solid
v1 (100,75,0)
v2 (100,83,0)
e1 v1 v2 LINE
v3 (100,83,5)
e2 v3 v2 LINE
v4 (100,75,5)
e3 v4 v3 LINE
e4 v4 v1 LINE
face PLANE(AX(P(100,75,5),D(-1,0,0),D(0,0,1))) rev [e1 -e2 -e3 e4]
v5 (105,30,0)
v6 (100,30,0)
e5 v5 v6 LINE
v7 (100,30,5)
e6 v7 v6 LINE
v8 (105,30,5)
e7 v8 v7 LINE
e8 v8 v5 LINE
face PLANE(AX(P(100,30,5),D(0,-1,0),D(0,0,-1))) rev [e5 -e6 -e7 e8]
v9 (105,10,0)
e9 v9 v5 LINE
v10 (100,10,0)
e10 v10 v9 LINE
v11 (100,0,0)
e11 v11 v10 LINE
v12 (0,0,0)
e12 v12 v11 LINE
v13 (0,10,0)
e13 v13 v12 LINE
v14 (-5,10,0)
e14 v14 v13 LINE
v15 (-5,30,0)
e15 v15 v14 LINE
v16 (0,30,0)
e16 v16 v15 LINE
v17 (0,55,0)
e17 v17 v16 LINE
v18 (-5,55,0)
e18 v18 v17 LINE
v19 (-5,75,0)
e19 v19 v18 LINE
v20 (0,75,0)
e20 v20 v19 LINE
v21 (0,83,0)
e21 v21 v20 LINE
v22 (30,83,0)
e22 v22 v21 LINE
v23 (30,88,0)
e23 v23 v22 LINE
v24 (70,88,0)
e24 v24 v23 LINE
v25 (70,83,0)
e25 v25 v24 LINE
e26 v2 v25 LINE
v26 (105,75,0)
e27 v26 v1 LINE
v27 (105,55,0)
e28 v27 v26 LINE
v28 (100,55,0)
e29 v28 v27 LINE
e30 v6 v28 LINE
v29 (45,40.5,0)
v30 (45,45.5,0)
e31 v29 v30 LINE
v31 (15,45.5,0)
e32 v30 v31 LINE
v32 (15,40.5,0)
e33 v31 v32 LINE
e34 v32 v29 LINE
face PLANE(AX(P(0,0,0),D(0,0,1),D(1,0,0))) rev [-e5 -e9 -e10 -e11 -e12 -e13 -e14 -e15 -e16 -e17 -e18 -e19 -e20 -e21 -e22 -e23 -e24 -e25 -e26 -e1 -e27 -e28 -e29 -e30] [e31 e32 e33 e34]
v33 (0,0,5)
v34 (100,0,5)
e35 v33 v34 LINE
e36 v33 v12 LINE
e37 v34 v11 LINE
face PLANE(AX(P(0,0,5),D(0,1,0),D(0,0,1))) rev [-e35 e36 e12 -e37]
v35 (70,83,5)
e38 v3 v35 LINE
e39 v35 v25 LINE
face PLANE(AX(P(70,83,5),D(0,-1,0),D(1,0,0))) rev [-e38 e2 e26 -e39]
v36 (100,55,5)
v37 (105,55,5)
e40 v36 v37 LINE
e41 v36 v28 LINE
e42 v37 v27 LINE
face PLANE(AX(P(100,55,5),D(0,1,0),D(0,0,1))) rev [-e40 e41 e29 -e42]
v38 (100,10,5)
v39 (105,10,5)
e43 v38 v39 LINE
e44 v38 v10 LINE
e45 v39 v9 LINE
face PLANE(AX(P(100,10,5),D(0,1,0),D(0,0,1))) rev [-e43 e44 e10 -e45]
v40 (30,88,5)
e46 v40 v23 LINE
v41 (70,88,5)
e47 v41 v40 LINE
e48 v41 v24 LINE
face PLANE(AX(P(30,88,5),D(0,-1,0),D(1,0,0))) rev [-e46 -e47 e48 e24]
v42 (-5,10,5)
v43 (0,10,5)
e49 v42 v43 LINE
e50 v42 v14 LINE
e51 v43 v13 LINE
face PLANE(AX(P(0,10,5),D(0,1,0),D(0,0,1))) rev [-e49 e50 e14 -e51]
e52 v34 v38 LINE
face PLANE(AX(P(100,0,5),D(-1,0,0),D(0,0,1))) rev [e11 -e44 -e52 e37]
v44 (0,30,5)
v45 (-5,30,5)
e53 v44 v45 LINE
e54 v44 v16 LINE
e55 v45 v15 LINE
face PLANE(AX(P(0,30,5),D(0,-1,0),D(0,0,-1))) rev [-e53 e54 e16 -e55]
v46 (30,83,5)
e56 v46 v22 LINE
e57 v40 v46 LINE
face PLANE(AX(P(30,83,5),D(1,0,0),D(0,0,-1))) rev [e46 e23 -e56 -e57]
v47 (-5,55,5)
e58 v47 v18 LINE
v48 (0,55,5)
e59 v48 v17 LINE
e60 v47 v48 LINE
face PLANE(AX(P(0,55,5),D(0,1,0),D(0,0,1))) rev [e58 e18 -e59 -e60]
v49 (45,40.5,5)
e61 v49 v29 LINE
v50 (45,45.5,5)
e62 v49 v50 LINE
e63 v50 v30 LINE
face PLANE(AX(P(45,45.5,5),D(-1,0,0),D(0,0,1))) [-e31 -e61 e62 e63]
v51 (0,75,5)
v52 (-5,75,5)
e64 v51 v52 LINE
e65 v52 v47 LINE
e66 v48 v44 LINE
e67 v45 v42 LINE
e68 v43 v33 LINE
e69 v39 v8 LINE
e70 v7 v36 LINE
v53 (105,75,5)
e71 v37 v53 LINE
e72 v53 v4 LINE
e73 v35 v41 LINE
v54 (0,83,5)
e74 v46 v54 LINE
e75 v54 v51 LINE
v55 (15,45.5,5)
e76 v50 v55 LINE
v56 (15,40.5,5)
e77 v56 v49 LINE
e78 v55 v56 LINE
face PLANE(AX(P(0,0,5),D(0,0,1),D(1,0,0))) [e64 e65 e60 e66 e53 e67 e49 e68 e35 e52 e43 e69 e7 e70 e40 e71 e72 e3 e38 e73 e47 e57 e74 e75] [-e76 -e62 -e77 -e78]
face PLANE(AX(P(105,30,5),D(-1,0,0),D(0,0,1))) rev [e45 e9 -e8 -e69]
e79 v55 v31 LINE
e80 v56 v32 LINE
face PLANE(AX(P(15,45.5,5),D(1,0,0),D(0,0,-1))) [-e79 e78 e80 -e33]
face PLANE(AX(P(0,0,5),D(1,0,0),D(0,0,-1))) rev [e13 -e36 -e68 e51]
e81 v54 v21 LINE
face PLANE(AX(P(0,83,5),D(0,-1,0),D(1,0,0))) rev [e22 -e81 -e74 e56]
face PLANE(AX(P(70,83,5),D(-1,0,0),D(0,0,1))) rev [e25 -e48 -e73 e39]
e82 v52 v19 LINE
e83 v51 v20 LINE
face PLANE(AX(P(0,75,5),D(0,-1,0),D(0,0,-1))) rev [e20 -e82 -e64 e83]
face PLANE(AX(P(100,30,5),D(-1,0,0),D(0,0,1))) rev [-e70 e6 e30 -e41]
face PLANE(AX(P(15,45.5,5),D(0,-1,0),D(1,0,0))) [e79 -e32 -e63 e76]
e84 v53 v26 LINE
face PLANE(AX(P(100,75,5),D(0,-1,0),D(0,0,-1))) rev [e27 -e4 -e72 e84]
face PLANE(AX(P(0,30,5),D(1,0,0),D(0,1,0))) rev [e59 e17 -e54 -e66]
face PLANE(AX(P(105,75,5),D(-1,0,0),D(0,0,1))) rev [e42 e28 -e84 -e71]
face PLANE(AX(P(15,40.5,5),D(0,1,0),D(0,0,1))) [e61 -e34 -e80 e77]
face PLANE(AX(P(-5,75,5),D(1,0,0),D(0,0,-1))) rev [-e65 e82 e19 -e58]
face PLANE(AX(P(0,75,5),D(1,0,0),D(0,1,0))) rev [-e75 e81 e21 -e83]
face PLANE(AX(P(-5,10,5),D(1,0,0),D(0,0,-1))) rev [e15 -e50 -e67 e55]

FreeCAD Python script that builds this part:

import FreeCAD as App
import Part
import Sketcher
from FreeCAD import Vector


def add_polygon(sketch, points):
    """Adds a closed chain of lines whose ends are joined by coincident constraints."""
    first, n = sketch.GeometryCount, len(points)
    for a, b in zip(points, points[1:] + points[:1]):
        sketch.addGeometry(Part.LineSegment(App.Vector(*a, 0), App.Vector(*b, 0)), False)
    for i in range(n):
        sketch.addConstraint(Sketcher.Constraint("Coincident", first + i, 2, first + (i + 1) % n, 1))

doc = App.newDocument("Part")
body = doc.addObject("PartDesign::Body", "Body")

# Sketch on XY plane
sketch1 = body.newObject("Sketcher::SketchObject", "Sketch")
sketch1.AttachmentSupport = (doc.getObject("XY_Plane"), [""])
sketch1.MapMode = "FlatFace"
add_polygon(sketch1, [(0, 83), (0, 75), (-5, 75), (-5, 55), (0, 55), (0, 30), (-5, 30), (-5, 10), (0, 10), (0, 0), (100, 0), (100, 10), (105, 10), (105, 30), (100, 30), (100, 55), (105, 55), (105, 75), (100, 75), (100, 83), (70, 83), (70, 88), (30, 88), (30, 83)])  # lines 0-23
add_polygon(sketch1, [(15, 40), (15, 46), (45, 46), (45, 40)])  # lines 24-27
sketch1.addConstraint([
    Sketcher.Constraint("Vertical", 0),
    Sketcher.Constraint("Horizontal", 1),
    Sketcher.Constraint("Vertical", 2),
    Sketcher.Constraint("Horizontal", 3),
    Sketcher.Constraint("Vertical", 4),
    Sketcher.Constraint("Horizontal", 5),
    Sketcher.Constraint("Vertical", 6),
    Sketcher.Constraint("Horizontal", 7),
    Sketcher.Constraint("Vertical", 8),
    Sketcher.Constraint("Horizontal", 9),
    Sketcher.Constraint("Vertical", 10),
    Sketcher.Constraint("Horizontal", 11),
    Sketcher.Constraint("Vertical", 12),
    Sketcher.Constraint("Horizontal", 13),
    Sketcher.Constraint("Vertical", 14),
    Sketcher.Constraint("Horizontal", 15),
    Sketcher.Constraint("Vertical", 16),
    Sketcher.Constraint("Horizontal", 17),
    Sketcher.Constraint("Vertical", 18),
    Sketcher.Constraint("Horizontal", 19),
    Sketcher.Constraint("Vertical", 20),
    Sketcher.Constraint("Horizontal", 21),
    Sketcher.Constraint("Vertical", 22),
    Sketcher.Constraint("Horizontal", 23),
    Sketcher.Constraint("Vertical", 24),
    Sketcher.Constraint("Horizontal", 25),
    Sketcher.Constraint("Vertical", 26),
    Sketcher.Constraint("Horizontal", 27),
    Sketcher.Constraint("Coincident", 8, 2, -1, 1),
    Sketcher.Constraint("PointOnObject", 0, 2, -2),
    Sketcher.Constraint("PointOnObject", 3, 2, -2),
    Sketcher.Constraint("Horizontal", 7, 2, 10, 2),
    Sketcher.Constraint("Horizontal", 5, 2, 12, 2),
    Sketcher.Constraint("Horizontal", 3, 2, 14, 2),
    Sketcher.Constraint("Horizontal", 1, 2, 16, 2),
    Sketcher.Constraint("Horizontal", 19, 2, 22, 2),
    Sketcher.Constraint("Vertical", 2, 2, 5, 2),
    Sketcher.Constraint("Vertical", 10, 2, 13, 2),
    Sketcher.Constraint("Vertical", 12, 2, 15, 2),
    Sketcher.Constraint("Vertical", 14, 2, 17, 2),
    Sketcher.Constraint("Equal", 7, 11),
    Sketcher.Constraint("Equal", 19, 23),
    Sketcher.Constraint("Equal", 23, 25),
    Sketcher.Constraint("Equal", 2, 6),
    Sketcher.Constraint("Equal", 17, 20),
    Sketcher.Constraint("Equal", 22, 24),
    Sketcher.Constraint("DistanceX", 1, 2, 1, 1, 5.0),
    Sketcher.Constraint("DistanceX", 9, 1, 9, 2, 100.0),
    Sketcher.Constraint("DistanceX", 19, 2, 19, 1, 30.0),
    Sketcher.Constraint("DistanceY", 0, 2, 0, 1, 8.0),
    Sketcher.Constraint("DistanceY", 2, 2, 2, 1, 20.0),
    Sketcher.Constraint("DistanceY", 4, 2, 4, 1, 25.0),
    Sketcher.Constraint("DistanceY", 8, 2, 8, 1, 10.0),
    Sketcher.Constraint("DistanceX", -1, 1, 24, 2, 15.0),
    Sketcher.Constraint("DistanceY", -1, 1, 24, 2, 45.5),
])
pad1 = body.newObject("PartDesign::Pad", "Pad")
pad1.Profile = sketch1
pad1.Length = 5

doc.recompute()
